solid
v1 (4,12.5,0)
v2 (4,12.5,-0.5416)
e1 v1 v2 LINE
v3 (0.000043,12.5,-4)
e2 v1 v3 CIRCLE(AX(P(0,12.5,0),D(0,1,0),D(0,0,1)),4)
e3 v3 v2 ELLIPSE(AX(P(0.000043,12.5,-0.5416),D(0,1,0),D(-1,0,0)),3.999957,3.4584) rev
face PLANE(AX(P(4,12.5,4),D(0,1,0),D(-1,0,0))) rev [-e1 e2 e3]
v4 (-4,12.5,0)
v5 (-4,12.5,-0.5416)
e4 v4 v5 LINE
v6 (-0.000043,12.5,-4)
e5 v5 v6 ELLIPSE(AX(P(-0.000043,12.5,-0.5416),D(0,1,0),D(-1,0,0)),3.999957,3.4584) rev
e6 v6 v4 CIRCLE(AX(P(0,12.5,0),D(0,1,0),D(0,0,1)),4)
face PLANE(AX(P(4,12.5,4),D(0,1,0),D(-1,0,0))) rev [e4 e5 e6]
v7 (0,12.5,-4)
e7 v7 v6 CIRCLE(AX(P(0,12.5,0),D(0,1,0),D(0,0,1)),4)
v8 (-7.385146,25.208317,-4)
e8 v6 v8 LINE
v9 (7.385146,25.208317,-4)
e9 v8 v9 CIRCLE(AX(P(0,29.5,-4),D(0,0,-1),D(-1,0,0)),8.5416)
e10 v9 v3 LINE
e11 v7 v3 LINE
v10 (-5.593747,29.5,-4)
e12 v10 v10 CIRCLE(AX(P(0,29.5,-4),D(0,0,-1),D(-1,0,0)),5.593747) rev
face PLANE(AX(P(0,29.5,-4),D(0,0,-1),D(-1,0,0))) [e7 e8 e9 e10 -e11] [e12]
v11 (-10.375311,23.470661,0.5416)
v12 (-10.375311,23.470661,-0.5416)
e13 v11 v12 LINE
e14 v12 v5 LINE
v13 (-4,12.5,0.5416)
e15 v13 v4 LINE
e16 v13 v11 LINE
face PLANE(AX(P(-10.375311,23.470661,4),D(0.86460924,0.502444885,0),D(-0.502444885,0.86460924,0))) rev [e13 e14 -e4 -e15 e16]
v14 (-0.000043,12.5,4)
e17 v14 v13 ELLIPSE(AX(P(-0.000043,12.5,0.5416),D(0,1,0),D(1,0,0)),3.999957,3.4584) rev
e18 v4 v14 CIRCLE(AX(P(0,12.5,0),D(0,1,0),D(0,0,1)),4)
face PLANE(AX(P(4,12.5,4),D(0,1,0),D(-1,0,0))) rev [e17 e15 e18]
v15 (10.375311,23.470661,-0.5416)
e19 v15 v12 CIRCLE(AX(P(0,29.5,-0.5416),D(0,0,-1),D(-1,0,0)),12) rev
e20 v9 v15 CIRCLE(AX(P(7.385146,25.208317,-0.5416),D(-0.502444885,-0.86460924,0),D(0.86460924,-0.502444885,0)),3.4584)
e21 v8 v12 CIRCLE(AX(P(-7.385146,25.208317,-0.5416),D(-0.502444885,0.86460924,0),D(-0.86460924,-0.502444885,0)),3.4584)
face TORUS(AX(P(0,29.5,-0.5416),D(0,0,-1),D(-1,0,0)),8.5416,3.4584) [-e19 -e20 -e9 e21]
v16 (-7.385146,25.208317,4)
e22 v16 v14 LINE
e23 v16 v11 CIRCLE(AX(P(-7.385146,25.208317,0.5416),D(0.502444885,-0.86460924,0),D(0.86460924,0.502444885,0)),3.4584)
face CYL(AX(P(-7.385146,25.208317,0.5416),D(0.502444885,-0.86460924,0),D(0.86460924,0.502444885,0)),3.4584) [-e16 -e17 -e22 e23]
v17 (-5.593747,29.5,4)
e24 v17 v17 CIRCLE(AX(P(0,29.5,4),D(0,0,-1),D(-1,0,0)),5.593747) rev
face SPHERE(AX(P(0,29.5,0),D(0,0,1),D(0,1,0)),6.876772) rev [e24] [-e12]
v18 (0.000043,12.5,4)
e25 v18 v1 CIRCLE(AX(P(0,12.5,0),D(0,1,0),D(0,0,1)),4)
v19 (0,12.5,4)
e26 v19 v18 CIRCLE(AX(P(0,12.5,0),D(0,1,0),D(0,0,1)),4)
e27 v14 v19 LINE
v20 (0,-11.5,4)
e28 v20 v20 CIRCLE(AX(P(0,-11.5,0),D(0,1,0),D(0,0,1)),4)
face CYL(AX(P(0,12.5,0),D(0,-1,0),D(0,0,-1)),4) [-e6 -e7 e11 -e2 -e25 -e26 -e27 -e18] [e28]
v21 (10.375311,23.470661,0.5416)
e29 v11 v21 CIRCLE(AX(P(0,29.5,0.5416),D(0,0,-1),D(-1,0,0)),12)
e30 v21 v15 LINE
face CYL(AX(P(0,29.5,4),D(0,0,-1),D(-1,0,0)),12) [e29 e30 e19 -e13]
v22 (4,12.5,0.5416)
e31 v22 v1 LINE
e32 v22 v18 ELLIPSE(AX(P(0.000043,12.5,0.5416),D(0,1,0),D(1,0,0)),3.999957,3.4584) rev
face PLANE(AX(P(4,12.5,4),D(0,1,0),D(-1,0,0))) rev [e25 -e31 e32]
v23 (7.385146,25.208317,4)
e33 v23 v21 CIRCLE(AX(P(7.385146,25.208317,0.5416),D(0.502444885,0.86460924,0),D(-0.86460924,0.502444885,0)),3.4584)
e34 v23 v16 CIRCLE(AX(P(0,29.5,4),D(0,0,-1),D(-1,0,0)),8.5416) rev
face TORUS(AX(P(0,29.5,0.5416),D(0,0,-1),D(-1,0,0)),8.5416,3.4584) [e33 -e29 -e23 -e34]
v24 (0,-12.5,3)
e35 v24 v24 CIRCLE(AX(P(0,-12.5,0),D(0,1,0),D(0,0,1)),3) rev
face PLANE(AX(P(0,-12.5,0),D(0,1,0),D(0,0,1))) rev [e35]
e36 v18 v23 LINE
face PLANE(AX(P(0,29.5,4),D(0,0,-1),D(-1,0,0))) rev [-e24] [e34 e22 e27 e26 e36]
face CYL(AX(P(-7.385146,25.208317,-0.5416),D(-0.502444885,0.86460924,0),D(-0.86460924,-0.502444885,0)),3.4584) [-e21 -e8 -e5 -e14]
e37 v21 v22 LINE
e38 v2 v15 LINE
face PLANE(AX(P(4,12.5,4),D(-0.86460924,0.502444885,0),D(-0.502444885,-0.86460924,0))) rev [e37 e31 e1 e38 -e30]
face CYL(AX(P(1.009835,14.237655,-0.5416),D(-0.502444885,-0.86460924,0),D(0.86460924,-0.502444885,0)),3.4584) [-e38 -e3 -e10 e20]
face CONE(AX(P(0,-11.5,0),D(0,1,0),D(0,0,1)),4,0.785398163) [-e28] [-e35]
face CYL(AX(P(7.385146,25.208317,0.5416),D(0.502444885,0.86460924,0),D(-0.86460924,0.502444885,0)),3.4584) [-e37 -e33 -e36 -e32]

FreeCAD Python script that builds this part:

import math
import FreeCAD as App
import Part
import Sketcher
from FreeCAD import Vector


def edges_at(feature, points):
    """Names of the edges that pass closest to the given points."""
    edges = feature.Shape.Edges
    near = lambda p: min(range(len(edges)), key=lambda i: edges[i].distToShape(Part.Vertex(*p))[0])
    return sorted({f"Edge{near(p) + 1}" for p in points})

doc = App.newDocument("Part")
body = doc.addObject("PartDesign::Body", "Body")

# Sketch on XZ plane
sketch1 = body.newObject("Sketcher::SketchObject", "Sketch")
sketch1.AttachmentSupport = (doc.getObject("XZ_Plane"), [""])
sketch1.MapMode = "FlatFace"
sketch1.addGeometry(Part.Circle(Vector(0, 0, 0), Vector(0, 0, 1), 4), False)
sketch1.addConstraint([
    Sketcher.Constraint("Coincident", 0, 3, -1, 1),
    Sketcher.Constraint("Diameter", 0, 8.0),
])
pad1 = body.newObject("PartDesign::Pad", "Pad")
pad1.Profile = sketch1
pad1.Length = 25
pad1.Midplane = True

# Sketch on XY plane
sketch2 = body.newObject("Sketcher::SketchObject", "Sketch001")
sketch2.AttachmentSupport = (doc.getObject("XY_Plane"), [""])
sketch2.MapMode = "FlatFace"
sketch2.addGeometry([
    Part.LineSegment(Vector(-10, 23, 0), Vector(-4, 12, 0)),
    Part.LineSegment(Vector(-4, 12, 0), Vector(4, 12, 0)),
    Part.LineSegment(Vector(4, 12, 0), Vector(10, 23, 0)),
    Part.ArcOfCircle(Part.Circle(Vector(0, 30, 0), Vector(0, 0, 1), 12), math.radians(-30), math.radians(210)),
], False)
sketch2.addConstraint([
    Sketcher.Constraint("Coincident", 0, 2, 1, 1),
    Sketcher.Constraint("Coincident", 1, 2, 2, 1),
    Sketcher.Constraint("Tangent", 2, 2, 3, 1),
    Sketcher.Constraint("Tangent", 3, 2, 0, 1),
    Sketcher.Constraint("Horizontal", 1),
    Sketcher.Constraint("Symmetric", 2, 2, 3, 2, -2),
    Sketcher.Constraint("Radius", 3, 12.0),
    Sketcher.Constraint("DistanceX", 1, 1, 1, 2, 8.0),
    Sketcher.Constraint("DistanceY", 0, 2, 3, 3, 17.0),
    Sketcher.Constraint("DistanceY", -1, 1, 3, 3, 29.5),
])
pad2 = body.newObject("PartDesign::Pad", "Pad001")
pad2.Profile = sketch2
pad2.Length = 8
pad2.Midplane = True
doc.recompute()

chamfer = body.newObject("PartDesign::Chamfer", "Chamfer")
chamfer.Base = (pad2, edges_at(pad2, [(-4, -12.5, 0)]))
chamfer.Size = 1

# Sketch on YZ plane
sketch3 = body.newObject("Sketcher::SketchObject", "Sketch002")
sketch3.AttachmentSupport = (doc.getObject("YZ_Plane"), [""])
sketch3.MapMode = "FlatFace"
sketch3.addGeometry([
    Part.LineSegment(Vector(30, 4, 0), Vector(30, -4, 0)),
    Part.LineSegment(Vector(30, -4, 0), Vector(35, -4, 0)),
    Part.ArcOfCircle(Part.Circle(Vector(30, 0, 0), Vector(0, 0, 1), 7), math.radians(-41), math.radians(41)),
    Part.LineSegment(Vector(35, 4, 0), Vector(30, 4, 0)),
], False)
sketch3.addGeometry(Part.LineSegment(Vector(30, 4, 0), Vector(30, -4, 0)), True)  # axis
sketch3.addConstraint([
    Sketcher.Constraint("Coincident", 0, 2, 1, 1),
    Sketcher.Constraint("Coincident", 1, 2, 2, 1),
    Sketcher.Constraint("Coincident", 2, 2, 3, 1),
    Sketcher.Constraint("Coincident", 3, 2, 0, 1),
    Sketcher.Constraint("Vertical", 0),
    Sketcher.Constraint("Horizontal", 1),
    Sketcher.Constraint("Horizontal", 3),
    Sketcher.Constraint("Vertical", 4),
    Sketcher.Constraint("Coincident", 4, 1, 3, 2),
    Sketcher.Constraint("Symmetric", 1, 2, 2, 2, -1),
    Sketcher.Constraint("Horizontal", 1, 2, 4, 2),
    Sketcher.Constraint("Vertical", 2, 3, 0, 2),
    Sketcher.Constraint("DistanceY", 0, 2, 0, 1, 9.0),
    Sketcher.Constraint("DistanceX", 1, 1, 1, 2, 5.2),
    Sketcher.Constraint("DistanceX", -1, 1, 2, 3, 29.5),
])
groove = body.newObject("PartDesign::Groove", "Groove")
groove.Profile = sketch3
groove.ReferenceAxis = (sketch3, ["Axis0"])
groove.Angle = 360
doc.recompute()

fillet = body.newObject("PartDesign::Fillet", "Fillet")
fillet.Base = (groove, edges_at(groove, [
    (-7.188, 17.985, 4),
    (0, 41.5, 4),
    (7.188, 17.985, 4),
    (7.188, 17.985, -4),
    (0, 41.5, -4),
    (-7.188, 17.985, -4),
]))
fillet.Radius = 3.4584

doc.recompute()
